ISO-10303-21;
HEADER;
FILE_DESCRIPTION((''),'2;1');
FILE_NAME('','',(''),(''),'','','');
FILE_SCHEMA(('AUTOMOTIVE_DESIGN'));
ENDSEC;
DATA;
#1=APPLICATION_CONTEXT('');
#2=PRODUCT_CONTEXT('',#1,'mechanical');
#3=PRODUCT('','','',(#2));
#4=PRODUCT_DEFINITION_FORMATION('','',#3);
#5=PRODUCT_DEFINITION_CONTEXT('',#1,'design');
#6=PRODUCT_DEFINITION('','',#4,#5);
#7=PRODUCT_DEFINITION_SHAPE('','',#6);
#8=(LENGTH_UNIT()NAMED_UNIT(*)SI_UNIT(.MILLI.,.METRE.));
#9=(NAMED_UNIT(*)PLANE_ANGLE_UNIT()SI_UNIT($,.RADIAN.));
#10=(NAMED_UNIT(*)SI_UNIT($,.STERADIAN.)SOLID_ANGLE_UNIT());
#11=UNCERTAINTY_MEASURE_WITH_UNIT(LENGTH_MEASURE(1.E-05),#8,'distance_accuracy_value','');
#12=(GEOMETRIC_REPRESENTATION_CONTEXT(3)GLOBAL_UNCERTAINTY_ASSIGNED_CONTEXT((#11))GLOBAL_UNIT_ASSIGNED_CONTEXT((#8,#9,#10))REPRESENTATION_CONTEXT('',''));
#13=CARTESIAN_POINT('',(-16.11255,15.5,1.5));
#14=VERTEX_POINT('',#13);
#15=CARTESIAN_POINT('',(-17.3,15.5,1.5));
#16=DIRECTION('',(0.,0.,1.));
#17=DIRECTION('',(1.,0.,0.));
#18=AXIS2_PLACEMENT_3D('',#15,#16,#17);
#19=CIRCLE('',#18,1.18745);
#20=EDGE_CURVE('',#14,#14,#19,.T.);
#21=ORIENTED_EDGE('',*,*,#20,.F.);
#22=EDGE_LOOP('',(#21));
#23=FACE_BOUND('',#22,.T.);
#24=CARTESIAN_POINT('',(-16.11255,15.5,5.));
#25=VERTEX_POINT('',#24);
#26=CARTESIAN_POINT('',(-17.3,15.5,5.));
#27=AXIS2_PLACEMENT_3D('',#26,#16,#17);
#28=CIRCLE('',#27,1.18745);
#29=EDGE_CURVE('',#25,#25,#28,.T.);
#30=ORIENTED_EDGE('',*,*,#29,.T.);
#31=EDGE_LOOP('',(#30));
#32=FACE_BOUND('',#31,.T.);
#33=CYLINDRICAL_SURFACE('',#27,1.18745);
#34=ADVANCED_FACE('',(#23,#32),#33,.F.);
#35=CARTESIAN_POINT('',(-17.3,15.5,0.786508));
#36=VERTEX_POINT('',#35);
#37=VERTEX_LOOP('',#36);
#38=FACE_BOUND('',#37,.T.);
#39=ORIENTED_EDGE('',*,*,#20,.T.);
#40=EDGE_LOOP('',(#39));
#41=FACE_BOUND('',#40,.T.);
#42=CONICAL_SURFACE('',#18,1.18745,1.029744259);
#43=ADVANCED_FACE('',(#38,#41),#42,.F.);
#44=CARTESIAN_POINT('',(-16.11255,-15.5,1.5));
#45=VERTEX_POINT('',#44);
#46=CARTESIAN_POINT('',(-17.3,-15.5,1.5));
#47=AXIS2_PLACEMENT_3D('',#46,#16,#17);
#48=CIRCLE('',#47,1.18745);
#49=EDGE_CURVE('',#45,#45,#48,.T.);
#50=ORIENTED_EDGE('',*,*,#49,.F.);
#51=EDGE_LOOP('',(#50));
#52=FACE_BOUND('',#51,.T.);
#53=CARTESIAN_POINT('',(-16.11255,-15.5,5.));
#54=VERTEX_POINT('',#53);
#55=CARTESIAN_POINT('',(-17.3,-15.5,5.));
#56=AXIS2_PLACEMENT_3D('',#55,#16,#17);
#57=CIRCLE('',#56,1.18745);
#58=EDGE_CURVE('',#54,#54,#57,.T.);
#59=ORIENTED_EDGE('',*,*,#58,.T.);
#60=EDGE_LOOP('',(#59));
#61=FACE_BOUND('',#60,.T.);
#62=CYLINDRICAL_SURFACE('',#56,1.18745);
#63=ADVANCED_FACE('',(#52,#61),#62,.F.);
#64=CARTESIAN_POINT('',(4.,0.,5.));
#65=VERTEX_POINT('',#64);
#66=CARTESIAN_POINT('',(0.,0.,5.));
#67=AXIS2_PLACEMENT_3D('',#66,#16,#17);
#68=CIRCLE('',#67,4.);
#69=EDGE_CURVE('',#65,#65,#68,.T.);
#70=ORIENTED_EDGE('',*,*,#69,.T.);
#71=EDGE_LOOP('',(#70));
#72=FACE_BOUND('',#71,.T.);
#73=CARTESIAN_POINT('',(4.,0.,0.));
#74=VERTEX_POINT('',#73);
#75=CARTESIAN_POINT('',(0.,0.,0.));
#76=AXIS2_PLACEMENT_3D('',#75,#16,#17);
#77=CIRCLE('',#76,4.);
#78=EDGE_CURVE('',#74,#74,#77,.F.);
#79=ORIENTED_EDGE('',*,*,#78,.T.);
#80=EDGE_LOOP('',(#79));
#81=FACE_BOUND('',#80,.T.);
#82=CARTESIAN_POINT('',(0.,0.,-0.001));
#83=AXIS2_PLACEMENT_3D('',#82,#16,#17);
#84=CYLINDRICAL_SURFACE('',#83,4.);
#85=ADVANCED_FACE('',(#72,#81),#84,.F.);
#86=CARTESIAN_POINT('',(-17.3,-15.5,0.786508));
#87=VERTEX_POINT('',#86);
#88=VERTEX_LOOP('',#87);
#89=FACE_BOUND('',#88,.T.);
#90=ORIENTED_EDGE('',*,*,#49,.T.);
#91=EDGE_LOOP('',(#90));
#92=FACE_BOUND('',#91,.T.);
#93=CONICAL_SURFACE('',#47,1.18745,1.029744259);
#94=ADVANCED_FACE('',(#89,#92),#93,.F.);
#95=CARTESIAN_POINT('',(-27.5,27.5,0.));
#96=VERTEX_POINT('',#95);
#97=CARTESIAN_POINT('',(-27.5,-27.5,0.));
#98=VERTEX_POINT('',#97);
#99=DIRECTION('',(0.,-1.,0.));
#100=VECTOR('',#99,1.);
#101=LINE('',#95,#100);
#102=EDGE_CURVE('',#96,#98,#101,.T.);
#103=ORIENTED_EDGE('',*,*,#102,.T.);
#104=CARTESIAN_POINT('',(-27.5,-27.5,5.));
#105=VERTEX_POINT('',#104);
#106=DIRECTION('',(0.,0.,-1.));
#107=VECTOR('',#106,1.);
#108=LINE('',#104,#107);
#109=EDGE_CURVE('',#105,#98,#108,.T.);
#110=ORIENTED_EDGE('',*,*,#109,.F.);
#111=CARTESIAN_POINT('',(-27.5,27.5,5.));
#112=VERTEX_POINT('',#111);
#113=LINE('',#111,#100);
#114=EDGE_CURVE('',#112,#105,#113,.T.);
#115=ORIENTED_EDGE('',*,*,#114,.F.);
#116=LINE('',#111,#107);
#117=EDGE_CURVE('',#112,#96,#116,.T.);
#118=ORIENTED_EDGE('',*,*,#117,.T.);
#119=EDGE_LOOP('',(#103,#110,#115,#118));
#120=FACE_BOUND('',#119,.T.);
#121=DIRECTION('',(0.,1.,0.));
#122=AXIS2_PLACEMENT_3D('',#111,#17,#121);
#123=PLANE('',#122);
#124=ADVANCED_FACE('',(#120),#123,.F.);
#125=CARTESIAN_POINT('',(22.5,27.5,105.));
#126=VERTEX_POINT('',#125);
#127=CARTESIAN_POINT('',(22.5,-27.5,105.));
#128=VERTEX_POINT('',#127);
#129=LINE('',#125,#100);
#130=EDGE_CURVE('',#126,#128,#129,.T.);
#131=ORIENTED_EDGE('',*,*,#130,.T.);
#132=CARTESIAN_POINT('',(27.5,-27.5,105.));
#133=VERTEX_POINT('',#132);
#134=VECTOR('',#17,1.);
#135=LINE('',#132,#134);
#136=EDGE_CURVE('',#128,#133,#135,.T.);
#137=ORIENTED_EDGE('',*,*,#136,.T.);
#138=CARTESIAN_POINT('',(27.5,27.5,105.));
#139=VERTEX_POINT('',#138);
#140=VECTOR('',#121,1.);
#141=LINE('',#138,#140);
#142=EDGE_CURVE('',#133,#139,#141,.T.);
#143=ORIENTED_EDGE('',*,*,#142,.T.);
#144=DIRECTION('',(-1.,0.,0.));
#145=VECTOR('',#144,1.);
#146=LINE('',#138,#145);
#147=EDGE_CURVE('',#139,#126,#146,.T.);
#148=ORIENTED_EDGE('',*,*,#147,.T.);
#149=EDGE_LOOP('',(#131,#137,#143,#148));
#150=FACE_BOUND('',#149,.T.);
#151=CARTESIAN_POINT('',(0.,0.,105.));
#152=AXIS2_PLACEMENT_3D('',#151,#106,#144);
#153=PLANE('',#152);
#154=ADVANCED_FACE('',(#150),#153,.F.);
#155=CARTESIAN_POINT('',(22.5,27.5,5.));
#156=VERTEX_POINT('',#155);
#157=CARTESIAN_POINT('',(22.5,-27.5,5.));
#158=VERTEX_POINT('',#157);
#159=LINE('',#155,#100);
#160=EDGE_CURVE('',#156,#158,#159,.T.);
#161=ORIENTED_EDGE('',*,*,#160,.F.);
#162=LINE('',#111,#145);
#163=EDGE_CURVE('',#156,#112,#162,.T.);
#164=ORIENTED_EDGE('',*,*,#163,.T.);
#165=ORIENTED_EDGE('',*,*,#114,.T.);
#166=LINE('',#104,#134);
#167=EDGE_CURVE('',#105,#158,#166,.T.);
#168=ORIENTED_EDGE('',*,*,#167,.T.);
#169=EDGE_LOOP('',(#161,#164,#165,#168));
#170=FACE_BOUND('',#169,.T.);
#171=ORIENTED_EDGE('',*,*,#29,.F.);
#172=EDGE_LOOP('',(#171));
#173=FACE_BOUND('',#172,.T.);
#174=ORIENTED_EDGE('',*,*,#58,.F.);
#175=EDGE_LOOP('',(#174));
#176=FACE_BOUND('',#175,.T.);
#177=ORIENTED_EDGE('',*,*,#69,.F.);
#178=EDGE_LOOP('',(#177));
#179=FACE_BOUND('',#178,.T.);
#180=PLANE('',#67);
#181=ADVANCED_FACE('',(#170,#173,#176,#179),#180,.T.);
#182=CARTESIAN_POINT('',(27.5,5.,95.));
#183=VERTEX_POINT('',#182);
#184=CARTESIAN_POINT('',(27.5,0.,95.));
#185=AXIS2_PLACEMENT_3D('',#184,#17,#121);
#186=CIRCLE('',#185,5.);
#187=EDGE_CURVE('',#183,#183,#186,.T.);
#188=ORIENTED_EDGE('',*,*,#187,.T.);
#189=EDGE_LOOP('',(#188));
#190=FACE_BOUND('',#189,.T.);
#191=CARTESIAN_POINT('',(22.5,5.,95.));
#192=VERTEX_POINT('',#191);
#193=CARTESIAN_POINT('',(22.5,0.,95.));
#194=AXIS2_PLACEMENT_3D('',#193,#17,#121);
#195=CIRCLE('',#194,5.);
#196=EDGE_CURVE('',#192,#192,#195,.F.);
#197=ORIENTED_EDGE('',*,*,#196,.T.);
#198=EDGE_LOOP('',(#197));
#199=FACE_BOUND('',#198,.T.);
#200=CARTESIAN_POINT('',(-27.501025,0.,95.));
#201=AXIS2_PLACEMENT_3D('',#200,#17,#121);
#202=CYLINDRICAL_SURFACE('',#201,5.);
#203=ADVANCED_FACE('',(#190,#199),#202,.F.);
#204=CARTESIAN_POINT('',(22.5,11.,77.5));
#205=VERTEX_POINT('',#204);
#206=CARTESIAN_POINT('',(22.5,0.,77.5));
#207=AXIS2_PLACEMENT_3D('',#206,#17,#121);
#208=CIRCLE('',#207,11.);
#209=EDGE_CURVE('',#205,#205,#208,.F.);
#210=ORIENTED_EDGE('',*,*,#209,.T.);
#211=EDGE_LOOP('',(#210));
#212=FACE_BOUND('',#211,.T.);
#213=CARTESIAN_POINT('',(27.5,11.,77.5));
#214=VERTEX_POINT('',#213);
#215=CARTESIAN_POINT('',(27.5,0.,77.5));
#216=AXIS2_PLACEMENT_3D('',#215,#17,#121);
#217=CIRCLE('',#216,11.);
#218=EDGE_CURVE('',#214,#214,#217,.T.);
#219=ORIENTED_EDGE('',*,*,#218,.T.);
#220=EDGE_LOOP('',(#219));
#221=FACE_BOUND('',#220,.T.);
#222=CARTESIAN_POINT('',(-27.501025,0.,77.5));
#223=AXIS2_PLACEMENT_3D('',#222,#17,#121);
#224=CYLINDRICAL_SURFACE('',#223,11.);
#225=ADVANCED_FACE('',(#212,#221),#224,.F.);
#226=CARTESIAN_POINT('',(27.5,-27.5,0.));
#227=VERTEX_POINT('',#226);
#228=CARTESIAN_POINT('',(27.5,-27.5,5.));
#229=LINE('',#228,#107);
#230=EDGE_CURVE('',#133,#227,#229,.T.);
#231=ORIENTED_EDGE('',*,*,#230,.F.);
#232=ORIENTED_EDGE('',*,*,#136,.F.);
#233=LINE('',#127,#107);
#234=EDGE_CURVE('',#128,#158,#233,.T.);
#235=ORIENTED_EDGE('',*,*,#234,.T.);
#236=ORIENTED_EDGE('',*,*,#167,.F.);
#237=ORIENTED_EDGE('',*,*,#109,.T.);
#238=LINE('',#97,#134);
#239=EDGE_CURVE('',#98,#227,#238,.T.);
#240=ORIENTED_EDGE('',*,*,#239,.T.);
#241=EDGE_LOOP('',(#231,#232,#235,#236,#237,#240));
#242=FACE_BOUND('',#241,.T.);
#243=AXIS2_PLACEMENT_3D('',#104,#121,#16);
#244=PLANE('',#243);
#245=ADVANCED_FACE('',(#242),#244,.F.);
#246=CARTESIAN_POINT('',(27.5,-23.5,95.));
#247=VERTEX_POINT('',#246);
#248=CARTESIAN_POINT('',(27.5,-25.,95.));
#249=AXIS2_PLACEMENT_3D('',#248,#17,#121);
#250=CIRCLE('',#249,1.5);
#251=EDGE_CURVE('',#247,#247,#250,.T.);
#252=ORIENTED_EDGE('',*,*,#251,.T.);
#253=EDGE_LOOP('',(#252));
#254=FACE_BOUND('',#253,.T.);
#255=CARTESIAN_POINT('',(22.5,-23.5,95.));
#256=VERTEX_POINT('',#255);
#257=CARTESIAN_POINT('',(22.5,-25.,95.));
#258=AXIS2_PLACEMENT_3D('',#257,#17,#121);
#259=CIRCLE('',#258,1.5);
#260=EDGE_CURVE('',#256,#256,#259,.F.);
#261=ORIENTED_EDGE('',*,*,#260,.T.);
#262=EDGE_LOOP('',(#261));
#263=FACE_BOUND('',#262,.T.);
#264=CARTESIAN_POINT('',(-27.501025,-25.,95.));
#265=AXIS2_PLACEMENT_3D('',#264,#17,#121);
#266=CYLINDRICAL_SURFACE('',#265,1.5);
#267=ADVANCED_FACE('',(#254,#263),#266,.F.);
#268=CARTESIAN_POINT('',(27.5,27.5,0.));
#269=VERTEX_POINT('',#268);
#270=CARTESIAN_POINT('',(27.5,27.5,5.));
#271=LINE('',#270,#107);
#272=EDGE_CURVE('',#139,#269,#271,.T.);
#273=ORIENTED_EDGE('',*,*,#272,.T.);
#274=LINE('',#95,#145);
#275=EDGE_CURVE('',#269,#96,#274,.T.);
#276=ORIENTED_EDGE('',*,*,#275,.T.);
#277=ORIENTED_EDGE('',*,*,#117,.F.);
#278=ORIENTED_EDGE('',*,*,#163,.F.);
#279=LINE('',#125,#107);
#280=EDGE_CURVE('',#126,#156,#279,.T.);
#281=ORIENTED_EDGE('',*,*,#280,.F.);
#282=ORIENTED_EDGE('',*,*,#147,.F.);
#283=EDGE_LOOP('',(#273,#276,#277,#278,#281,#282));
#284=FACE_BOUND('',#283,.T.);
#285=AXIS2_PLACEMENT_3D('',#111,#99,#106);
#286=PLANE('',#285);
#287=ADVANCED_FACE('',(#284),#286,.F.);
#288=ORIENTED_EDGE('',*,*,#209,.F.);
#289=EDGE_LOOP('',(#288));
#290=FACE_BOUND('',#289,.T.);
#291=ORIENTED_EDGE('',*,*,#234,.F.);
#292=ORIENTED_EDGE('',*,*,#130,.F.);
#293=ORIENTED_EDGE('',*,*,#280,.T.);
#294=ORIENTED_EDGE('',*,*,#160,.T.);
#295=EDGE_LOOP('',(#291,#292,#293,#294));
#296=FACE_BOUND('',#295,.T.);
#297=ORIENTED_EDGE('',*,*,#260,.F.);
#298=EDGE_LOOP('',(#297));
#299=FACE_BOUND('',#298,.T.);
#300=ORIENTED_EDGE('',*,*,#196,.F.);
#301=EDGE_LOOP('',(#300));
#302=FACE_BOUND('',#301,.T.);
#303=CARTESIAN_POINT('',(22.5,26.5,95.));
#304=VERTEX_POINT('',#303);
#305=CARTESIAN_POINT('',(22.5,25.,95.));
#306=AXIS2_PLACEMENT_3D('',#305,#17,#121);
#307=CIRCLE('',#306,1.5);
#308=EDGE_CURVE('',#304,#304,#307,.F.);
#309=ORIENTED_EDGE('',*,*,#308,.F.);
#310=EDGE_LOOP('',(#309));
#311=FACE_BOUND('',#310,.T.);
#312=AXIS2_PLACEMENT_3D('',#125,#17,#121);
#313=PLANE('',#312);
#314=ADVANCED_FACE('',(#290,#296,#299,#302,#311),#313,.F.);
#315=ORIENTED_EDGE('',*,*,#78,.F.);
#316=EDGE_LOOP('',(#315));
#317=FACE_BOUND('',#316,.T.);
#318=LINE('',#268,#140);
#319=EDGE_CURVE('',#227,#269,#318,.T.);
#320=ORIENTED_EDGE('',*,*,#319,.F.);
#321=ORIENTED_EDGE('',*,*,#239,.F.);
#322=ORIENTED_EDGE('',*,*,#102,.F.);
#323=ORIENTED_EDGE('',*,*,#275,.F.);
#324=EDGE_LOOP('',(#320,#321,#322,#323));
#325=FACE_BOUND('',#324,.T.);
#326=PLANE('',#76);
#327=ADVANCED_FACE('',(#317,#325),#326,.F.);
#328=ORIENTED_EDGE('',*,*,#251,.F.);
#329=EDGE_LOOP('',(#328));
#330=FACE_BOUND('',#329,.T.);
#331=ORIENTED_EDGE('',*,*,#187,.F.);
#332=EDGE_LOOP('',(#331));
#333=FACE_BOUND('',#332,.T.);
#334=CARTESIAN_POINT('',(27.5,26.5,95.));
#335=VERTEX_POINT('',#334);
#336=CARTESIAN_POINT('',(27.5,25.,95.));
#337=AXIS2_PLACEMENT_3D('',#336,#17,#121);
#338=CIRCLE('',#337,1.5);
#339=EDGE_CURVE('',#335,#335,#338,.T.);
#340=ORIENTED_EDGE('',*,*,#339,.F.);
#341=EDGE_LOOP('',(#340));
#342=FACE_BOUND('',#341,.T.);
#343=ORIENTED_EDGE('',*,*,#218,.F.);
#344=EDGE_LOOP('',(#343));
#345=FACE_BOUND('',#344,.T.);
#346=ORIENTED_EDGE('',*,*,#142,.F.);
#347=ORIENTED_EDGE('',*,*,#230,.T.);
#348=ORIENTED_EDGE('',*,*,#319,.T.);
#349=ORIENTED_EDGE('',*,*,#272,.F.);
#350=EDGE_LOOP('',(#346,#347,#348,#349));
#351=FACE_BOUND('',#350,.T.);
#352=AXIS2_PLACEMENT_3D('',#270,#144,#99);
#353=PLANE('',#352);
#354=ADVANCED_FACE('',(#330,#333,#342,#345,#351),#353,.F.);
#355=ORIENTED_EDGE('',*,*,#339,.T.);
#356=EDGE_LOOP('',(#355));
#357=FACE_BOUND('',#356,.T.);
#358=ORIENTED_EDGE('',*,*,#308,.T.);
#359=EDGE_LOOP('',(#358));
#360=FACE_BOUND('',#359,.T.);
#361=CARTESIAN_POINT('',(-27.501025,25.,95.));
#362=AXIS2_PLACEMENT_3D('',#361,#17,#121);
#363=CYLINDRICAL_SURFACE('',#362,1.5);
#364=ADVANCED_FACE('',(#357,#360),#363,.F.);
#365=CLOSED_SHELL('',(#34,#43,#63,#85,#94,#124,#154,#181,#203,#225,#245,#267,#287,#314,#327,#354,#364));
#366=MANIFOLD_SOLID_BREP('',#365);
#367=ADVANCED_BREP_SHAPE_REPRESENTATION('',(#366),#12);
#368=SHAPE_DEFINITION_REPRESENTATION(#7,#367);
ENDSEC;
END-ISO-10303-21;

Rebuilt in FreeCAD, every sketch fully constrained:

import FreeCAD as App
import Part
import Sketcher
from FreeCAD import Vector

doc = App.newDocument("Part")
body = doc.addObject("PartDesign::Body", "Body")

# Sketch on XY plane
sketch1 = doc.addObject("Sketcher::SketchObject", "Sketch")
body.addObject(sketch1)
sketch1.AttachmentSupport = (doc.XY_Plane, [""])
sketch1.MapMode = "FlatFace"
sketch1.addGeometry([
    Part.LineSegment(Vector(-27.5, 27.5, 0), Vector(-27.5, -27.5, 0)),
    Part.LineSegment(Vector(-27.5, -27.5, 0), Vector(27.5, -27.5, 0)),
    Part.LineSegment(Vector(27.5, -27.5, 0), Vector(27.5, 27.5, 0)),
    Part.LineSegment(Vector(27.5, 27.5, 0), Vector(-27.5, 27.5, 0)),
], False)
sketch1.addConstraint([
    Sketcher.Constraint("Coincident", 0, 2, 1, 1),
    Sketcher.Constraint("Coincident", 1, 2, 2, 1),
    Sketcher.Constraint("Coincident", 2, 2, 3, 1),
    Sketcher.Constraint("Coincident", 3, 2, 0, 1),
    Sketcher.Constraint("Vertical", 0),
    Sketcher.Constraint("Horizontal", 1),
    Sketcher.Constraint("Vertical", 2),
    Sketcher.Constraint("Horizontal", 3),
    Sketcher.Constraint("Symmetric", 0, 2, 2, 2, -1, 1),
    Sketcher.Constraint("Equal", 3, 0),
    Sketcher.Constraint("DistanceX", 1, 1, 1, 2, 55.0),
])
pad1 = doc.addObject("PartDesign::Pad", "Pad")
body.addObject(pad1)
pad1.Profile = sketch1
pad1.Length = 5

# Sketch on XY plane
sketch2 = doc.addObject("Sketcher::SketchObject", "Sketch001")
body.addObject(sketch2)
sketch2.AttachmentSupport = (doc.XY_Plane, [""])
sketch2.MapMode = "FlatFace"
sketch2.AttachmentOffset = App.Placement(Vector(0, 0, 5), App.Rotation())
sketch2.addGeometry([
    Part.LineSegment(Vector(22.5, 27.5, 0), Vector(22.5, -27.5, 0)),
    Part.LineSegment(Vector(22.5, -27.5, 0), Vector(27.5, -27.5, 0)),
    Part.LineSegment(Vector(27.5, -27.5, 0), Vector(27.5, 27.5, 0)),
    Part.LineSegment(Vector(27.5, 27.5, 0), Vector(22.5, 27.5, 0)),
], False)
sketch2.addConstraint([
    Sketcher.Constraint("Coincident", 0, 2, 1, 1),
    Sketcher.Constraint("Coincident", 1, 2, 2, 1),
    Sketcher.Constraint("Coincident", 2, 2, 3, 1),
    Sketcher.Constraint("Coincident", 3, 2, 0, 1),
    Sketcher.Constraint("Vertical", 0),
    Sketcher.Constraint("Horizontal", 1),
    Sketcher.Constraint("Vertical", 2),
    Sketcher.Constraint("Horizontal", 3),
    Sketcher.Constraint("DistanceX", 1, 1, 1, 2, 5.0),
    Sketcher.Constraint("DistanceY", 0, 2, 0, 1, 55.0),
    Sketcher.Constraint("DistanceX", -1, 1, 0, 2, 22.5),
    Sketcher.Constraint("DistanceY", 0, 2, -1, 1, 27.5),
])
pad2 = doc.addObject("PartDesign::Pad", "Pad001")
body.addObject(pad2)
pad2.Profile = sketch2
pad2.Length = 100

# Sketch on YZ plane
sketch3 = doc.addObject("Sketcher::SketchObject", "Sketch002")
body.addObject(sketch3)
sketch3.AttachmentSupport = (doc.YZ_Plane, [""])
sketch3.MapMode = "FlatFace"
sketch3.AttachmentOffset = App.Placement(Vector(0, 0, 27.5), App.Rotation())
sketch3.addGeometry(Part.Circle(Vector(0, 95, 0), Vector(0, 0, 1), 5), False)
sketch3.addConstraint([
    Sketcher.Constraint("PointOnObject", 0, 3, -2),
    Sketcher.Constraint("Diameter", 0, 10.0),
    Sketcher.Constraint("DistanceY", -1, 1, 0, 3, 95.0),
])
pocket1 = doc.addObject("PartDesign::Pocket", "Pocket")
body.addObject(pocket1)
pocket1.Profile = sketch3
pocket1.Type = "UpToFirst"

# Sketch on YZ plane
sketch4 = doc.addObject("Sketcher::SketchObject", "Sketch003")
body.addObject(sketch4)
sketch4.AttachmentSupport = (doc.YZ_Plane, [""])
sketch4.MapMode = "FlatFace"
sketch4.AttachmentOffset = App.Placement(Vector(0, 0, 27.5), App.Rotation())
sketch4.addGeometry(Part.Circle(Vector(25, 95, 0), Vector(0, 0, 1), 1.5), False)
sketch4.addConstraint([
    Sketcher.Constraint("Diameter", 0, 3.0),
    Sketcher.Constraint("DistanceX", -1, 1, 0, 3, 25.0),
    Sketcher.Constraint("DistanceY", -1, 1, 0, 3, 95.0),
])
pocket2 = doc.addObject("PartDesign::Pocket", "Pocket001")
body.addObject(pocket2)
pocket2.Profile = sketch4
pocket2.Type = "UpToFirst"

# Sketch on YZ plane
sketch5 = doc.addObject("Sketcher::SketchObject", "Sketch004")
body.addObject(sketch5)
sketch5.AttachmentSupport = (doc.YZ_Plane, [""])
sketch5.MapMode = "FlatFace"
sketch5.AttachmentOffset = App.Placement(Vector(0, 0, 27.5), App.Rotation())
sketch5.addGeometry(Part.Circle(Vector(-25, 95, 0), Vector(0, 0, 1), 1.5), False)
sketch5.addConstraint([
    Sketcher.Constraint("Diameter", 0, 3.0),
    Sketcher.Constraint("DistanceX", 0, 3, -1, 1, 25.0),
    Sketcher.Constraint("DistanceY", -1, 1, 0, 3, 95.0),
])
pocket3 = doc.addObject("PartDesign::Pocket", "Pocket002")
body.addObject(pocket3)
pocket3.Profile = sketch5
pocket3.Type = "UpToFirst"

# Sketch on YZ plane
sketch6 = doc.addObject("Sketcher::SketchObject", "Sketch005")
body.addObject(sketch6)
sketch6.AttachmentSupport = (doc.YZ_Plane, [""])
sketch6.MapMode = "FlatFace"
sketch6.AttachmentOffset = App.Placement(Vector(0, 0, 27.5), App.Rotation())
sketch6.addGeometry(Part.Circle(Vector(0, 77.5, 0), Vector(0, 0, 1), 11), False)
sketch6.addConstraint([
    Sketcher.Constraint("PointOnObject", 0, 3, -2),
    Sketcher.Constraint("Diameter", 0, 22.0),
    Sketcher.Constraint("DistanceY", -1, 1, 0, 3, 77.5),
])
pocket4 = doc.addObject("PartDesign::Pocket", "Pocket003")
body.addObject(pocket4)
pocket4.Profile = sketch6
pocket4.Type = "UpToFirst"

# Sketch on XY plane
sketch7 = doc.addObject("Sketcher::SketchObject", "Sketch006")
body.addObject(sketch7)
sketch7.AttachmentSupport = (doc.XY_Plane, [""])
sketch7.MapMode = "FlatFace"
sketch7.AttachmentOffset = App.Placement(Vector(0, 0, 5), App.Rotation())
sketch7.addGeometry(Part.Circle(Vector(0, 0, 0), Vector(0, 0, 1), 4), False)
sketch7.addConstraint([
    Sketcher.Constraint("Coincident", 0, 3, -1, 1),
    Sketcher.Constraint("Diameter", 0, 8.0),
])
pocket5 = doc.addObject("PartDesign::Pocket", "Pocket004")
body.addObject(pocket5)
pocket5.Profile = sketch7
pocket5.Type = "UpToFirst"

# Sketch on XY plane
sketch8 = doc.addObject("Sketcher::SketchObject", "Sketch007")
body.addObject(sketch8)
sketch8.AttachmentSupport = (doc.XY_Plane, [""])
sketch8.MapMode = "FlatFace"
sketch8.AttachmentOffset = App.Placement(Vector(0, 0, 5), App.Rotation())
sketch8.addGeometry([
    Part.Circle(Vector(-17.3, 15.5, 0), Vector(0, 0, 1), 1.18745),
    Part.Circle(Vector(-17.3, -15.5, 0), Vector(0, 0, 1), 1.18745),
], False)
sketch8.addConstraint([
    Sketcher.Constraint("Equal", 0, 1),
    Sketcher.Constraint("Symmetric", 0, 3, 1, 3, -1),
    Sketcher.Constraint("DistanceY", 1, 3, 0, 3, 31.0),
    Sketcher.Constraint("Diameter", 0, 2.3749),
    Sketcher.Constraint("DistanceX", 0, 3, -1, 1, 17.3),
])
doc.recompute()
hole = doc.addObject("PartDesign::Hole", "Hole")
body.addObject(hole)
hole.Profile = sketch8
hole.ThreadType = "None"
hole.Diameter = 2.3749
hole.DepthType = "Dimension"
hole.Depth = 3.5
hole.DrillPoint = "Angled"
hole.DrillPointAngle = 118

doc.recompute()
